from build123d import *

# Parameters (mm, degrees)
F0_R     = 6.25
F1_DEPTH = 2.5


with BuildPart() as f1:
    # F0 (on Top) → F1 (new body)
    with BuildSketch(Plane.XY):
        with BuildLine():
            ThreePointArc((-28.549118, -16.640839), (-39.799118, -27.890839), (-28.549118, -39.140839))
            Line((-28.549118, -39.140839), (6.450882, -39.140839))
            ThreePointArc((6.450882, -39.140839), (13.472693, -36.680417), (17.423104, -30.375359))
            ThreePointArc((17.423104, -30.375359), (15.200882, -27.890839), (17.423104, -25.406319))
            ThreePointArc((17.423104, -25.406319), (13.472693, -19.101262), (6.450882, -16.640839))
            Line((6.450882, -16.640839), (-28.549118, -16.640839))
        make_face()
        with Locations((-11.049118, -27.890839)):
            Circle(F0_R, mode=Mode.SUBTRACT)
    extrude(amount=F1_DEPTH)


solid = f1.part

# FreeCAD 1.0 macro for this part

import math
import FreeCAD as App
import Part
import Sketcher

doc = App.newDocument("Part")
params = doc.addObject("Spreadsheet::Sheet", "Params")
for row, (alias, value) in enumerate([
    ("sketch1_diameter", "12.5 mm"),
    ("sketch1_radius", "2.5 mm"),
    ("sketch1_width", "35 mm"),
    ("sketch1_radius2", "11.25 mm"),
    ("pad1_length", "2.5 mm"),
], start=1):
    params.set(f"A{row}", alias)
    params.set(f"B{row}", "=" + value)
    params.setAlias(f"B{row}", alias)

body = doc.addObject("PartDesign::Body", "Body")

sketch1 = body.newObject("Sketcher::SketchObject", "Sketch")
sketch1.AttachmentSupport = (doc.getObject("XY_Plane"), [""])
sketch1.MapMode = "FlatFace"
sketch1.addGeometry([
    Part.ArcOfCircle(Part.Circle(App.Vector(-28.5, -27.9, 0), App.Vector(0, 0, 1), 11.2), math.radians(90), math.radians(270)),
    Part.LineSegment(App.Vector(-28.5, -39.1, 0), App.Vector(6.5, -39.1, 0)),
    Part.ArcOfCircle(Part.Circle(App.Vector(6.5, -27.9, 0), App.Vector(0, 0, 1), 11.2), math.radians(-90), math.radians(-13)),
    Part.ArcOfCircle(Part.Circle(App.Vector(17.7, -27.9, 0), App.Vector(0, 0, 1), 2.5), math.radians(96), math.radians(264)),
    Part.ArcOfCircle(Part.Circle(App.Vector(6.5, -27.9, 0), App.Vector(0, 0, 1), 11.3), math.radians(13), math.radians(90)),
    Part.LineSegment(App.Vector(6.5, -16.6, 0), App.Vector(-28.5, -16.6, 0)),
    Part.Circle(App.Vector(-11, -27.9, 0), App.Vector(0, 0, 1), 6.2),
], False)
sketch1.addConstraint([
    Sketcher.Constraint("Tangent", 0, 2, 1, 1),
    Sketcher.Constraint("Tangent", 1, 2, 2, 1),
    Sketcher.Constraint("Coincident", 2, 2, 3, 2),
    Sketcher.Constraint("Coincident", 3, 1, 4, 1),
    Sketcher.Constraint("Tangent", 4, 2, 5, 1),
    Sketcher.Constraint("Tangent", 5, 2, 0, 1),
    Sketcher.Constraint("Horizontal", 1),
    Sketcher.Constraint("Horizontal", 5),
    Sketcher.Constraint("Coincident", 4, 3, 2, 3),
    Sketcher.Constraint("Equal", 0, 4),
    Sketcher.Constraint("Horizontal", 0, 3, 3, 3),
    Sketcher.Constraint("Horizontal", 4, 3, 6, 3),
    Sketcher.Constraint("Diameter", 6, 12.5),
    Sketcher.Constraint("Radius", 3, 2.5),
    Sketcher.Constraint("DistanceX", 1, 1, 1, 2, 35.0),
    Sketcher.Constraint("Radius", 0, 11.25),
    Sketcher.Constraint("DistanceX", 6, 3, 4, 3, 17.499999),
    Sketcher.Constraint("DistanceX", 2, 3, 3, 3, 11.249998),
    Sketcher.Constraint("DistanceX", 0, 3, -1, 1, 28.549118),
    Sketcher.Constraint("DistanceY", 0, 3, -1, 1, 27.890839),
])
sketch1.setExpression("Constraints[12]", "Params.sketch1_diameter")
sketch1.setExpression("Constraints[13]", "Params.sketch1_radius")
sketch1.setExpression("Constraints[14]", "Params.sketch1_width")
sketch1.setExpression("Constraints[15]", "Params.sketch1_radius2")
pad1 = body.newObject("PartDesign::Pad", "Pad")
pad1.Profile = sketch1
pad1.setExpression("Length", "Params.pad1_length")

doc.recompute()
